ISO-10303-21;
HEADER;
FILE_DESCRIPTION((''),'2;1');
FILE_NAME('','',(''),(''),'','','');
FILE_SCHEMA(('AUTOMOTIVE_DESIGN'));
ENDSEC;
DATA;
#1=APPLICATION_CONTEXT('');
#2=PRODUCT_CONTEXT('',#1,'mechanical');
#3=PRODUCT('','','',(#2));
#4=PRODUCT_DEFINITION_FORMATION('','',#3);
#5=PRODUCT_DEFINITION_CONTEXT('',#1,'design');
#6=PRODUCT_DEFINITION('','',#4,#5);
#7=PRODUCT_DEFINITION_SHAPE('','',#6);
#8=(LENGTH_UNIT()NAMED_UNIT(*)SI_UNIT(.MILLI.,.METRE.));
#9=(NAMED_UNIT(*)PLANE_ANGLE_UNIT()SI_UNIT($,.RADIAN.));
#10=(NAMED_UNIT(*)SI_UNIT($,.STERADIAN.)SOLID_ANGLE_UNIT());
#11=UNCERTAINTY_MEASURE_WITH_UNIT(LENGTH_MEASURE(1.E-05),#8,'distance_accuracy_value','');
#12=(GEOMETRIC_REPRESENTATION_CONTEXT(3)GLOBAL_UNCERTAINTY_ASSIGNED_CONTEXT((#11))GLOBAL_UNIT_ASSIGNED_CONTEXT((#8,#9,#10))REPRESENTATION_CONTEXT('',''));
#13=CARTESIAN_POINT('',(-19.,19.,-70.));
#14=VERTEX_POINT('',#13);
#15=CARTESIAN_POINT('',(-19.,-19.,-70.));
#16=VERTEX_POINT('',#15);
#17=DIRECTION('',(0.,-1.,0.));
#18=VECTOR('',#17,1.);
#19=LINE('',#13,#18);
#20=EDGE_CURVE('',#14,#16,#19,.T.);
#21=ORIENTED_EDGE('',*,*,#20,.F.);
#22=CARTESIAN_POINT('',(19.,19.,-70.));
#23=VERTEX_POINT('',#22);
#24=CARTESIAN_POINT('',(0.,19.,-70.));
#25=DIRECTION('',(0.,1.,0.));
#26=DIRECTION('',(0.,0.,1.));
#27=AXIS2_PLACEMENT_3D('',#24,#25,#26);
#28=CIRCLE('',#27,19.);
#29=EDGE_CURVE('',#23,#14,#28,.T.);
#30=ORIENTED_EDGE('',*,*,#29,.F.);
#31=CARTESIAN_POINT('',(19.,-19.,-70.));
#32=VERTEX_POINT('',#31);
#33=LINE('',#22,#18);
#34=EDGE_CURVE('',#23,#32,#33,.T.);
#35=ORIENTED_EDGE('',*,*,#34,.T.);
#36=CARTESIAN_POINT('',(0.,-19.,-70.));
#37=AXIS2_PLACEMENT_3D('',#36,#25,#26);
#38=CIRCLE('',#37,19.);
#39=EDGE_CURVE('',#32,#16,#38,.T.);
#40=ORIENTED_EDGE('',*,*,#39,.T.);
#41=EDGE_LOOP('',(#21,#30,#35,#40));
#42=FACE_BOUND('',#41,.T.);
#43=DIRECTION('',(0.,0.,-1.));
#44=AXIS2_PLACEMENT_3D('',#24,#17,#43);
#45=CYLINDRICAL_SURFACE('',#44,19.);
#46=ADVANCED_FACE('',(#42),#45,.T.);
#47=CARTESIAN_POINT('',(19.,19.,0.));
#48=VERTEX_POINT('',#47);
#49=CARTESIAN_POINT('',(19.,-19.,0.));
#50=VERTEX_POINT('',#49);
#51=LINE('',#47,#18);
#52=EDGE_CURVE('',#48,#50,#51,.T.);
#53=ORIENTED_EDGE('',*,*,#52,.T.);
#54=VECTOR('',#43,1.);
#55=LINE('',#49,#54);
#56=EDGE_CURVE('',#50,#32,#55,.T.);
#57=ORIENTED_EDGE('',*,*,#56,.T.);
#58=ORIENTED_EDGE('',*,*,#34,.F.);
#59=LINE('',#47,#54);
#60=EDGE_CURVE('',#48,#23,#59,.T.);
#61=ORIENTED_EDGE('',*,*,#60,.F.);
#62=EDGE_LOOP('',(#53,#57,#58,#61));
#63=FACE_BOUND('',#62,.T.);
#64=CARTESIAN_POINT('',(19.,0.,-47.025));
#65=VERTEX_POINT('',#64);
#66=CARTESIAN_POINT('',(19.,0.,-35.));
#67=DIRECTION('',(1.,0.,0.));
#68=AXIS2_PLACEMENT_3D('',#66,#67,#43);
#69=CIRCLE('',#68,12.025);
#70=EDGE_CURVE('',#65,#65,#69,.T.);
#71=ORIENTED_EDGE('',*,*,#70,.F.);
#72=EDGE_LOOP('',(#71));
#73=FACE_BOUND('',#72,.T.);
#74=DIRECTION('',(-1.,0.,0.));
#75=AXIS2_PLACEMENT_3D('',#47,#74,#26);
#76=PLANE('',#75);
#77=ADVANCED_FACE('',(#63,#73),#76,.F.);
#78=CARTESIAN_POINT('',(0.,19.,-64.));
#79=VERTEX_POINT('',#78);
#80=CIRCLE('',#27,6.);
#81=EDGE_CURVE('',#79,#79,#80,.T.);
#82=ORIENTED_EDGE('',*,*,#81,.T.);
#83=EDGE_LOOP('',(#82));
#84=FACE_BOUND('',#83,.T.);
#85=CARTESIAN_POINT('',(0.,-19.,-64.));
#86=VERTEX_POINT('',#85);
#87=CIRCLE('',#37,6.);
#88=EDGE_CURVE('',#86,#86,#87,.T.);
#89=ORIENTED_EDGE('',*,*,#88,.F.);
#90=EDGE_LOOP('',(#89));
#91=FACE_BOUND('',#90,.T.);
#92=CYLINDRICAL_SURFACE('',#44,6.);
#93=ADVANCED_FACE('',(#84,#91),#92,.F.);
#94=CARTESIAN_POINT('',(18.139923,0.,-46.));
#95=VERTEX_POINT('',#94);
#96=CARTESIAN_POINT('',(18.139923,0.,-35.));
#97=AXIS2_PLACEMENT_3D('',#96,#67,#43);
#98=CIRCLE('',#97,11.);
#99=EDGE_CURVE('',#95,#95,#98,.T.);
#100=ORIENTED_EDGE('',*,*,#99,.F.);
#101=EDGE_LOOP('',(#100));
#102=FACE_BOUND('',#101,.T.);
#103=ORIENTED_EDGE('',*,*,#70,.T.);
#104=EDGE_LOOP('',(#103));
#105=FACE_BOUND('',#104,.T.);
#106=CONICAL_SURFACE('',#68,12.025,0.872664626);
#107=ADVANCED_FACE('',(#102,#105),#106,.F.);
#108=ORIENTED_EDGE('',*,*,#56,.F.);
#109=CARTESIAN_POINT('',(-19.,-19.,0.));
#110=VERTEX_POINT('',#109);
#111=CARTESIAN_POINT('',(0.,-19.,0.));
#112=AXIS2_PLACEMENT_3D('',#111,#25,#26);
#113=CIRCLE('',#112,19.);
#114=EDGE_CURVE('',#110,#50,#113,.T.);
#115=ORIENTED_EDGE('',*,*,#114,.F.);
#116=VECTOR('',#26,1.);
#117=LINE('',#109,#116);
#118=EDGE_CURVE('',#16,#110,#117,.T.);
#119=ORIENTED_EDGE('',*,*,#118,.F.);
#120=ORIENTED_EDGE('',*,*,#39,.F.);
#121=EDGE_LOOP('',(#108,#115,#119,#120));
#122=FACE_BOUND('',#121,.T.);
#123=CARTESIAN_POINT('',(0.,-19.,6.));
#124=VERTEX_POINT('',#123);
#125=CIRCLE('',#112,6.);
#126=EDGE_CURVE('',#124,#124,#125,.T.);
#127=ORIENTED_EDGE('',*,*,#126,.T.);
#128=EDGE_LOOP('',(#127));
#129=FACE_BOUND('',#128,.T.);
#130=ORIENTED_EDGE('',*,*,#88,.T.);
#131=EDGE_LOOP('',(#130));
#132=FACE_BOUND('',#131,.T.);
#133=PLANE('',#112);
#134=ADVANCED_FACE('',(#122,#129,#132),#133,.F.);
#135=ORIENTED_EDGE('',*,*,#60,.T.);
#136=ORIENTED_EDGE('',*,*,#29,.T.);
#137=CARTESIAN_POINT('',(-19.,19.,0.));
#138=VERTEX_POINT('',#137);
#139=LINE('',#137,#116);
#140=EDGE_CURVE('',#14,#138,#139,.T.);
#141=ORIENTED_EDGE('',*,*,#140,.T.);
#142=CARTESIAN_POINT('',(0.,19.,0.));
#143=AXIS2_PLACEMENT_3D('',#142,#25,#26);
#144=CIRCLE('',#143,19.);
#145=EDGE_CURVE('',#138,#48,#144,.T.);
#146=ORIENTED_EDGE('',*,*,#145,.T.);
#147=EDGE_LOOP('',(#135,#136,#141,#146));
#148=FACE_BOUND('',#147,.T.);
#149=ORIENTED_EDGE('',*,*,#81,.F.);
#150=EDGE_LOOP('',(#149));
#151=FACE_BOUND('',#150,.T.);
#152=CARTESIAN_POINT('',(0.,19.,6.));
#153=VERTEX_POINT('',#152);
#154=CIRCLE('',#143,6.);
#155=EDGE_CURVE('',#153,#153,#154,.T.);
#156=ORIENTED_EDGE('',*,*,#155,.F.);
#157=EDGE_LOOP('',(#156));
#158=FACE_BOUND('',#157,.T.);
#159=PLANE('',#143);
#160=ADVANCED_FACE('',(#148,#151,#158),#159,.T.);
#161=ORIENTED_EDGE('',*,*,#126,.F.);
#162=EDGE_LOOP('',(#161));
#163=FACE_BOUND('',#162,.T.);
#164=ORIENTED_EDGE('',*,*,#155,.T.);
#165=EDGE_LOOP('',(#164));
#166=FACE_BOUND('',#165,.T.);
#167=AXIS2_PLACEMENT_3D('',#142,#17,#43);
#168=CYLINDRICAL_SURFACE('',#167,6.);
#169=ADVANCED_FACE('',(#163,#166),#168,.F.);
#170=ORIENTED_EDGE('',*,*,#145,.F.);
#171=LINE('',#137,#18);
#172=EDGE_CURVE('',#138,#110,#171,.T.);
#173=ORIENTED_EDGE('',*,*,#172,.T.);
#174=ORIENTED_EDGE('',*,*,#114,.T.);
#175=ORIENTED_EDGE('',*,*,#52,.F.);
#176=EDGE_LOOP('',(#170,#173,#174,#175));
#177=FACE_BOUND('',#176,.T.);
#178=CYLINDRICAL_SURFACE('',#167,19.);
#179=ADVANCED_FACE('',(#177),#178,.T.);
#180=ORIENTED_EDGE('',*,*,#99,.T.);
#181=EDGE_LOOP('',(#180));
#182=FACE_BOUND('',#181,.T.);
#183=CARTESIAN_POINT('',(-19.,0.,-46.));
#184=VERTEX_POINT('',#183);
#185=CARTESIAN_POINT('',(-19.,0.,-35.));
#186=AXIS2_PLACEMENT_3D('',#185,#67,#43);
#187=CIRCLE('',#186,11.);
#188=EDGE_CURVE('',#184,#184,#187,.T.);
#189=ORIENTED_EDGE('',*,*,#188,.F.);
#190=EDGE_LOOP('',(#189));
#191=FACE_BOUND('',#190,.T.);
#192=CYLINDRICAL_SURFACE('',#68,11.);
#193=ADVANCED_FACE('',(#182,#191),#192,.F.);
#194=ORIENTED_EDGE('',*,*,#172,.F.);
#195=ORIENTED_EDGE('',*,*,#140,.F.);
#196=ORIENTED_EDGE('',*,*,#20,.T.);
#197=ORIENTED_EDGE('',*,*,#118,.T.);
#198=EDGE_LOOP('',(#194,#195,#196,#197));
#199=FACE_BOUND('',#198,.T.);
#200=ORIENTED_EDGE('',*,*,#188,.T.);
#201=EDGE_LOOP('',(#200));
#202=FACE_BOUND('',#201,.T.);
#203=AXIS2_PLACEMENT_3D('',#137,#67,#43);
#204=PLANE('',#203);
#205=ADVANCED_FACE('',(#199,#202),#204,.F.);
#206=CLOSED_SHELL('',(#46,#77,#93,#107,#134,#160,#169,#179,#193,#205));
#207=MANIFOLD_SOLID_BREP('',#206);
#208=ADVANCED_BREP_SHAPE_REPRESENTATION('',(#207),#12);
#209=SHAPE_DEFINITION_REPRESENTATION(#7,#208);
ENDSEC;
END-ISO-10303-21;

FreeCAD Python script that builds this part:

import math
import FreeCAD as App
import Part
import Sketcher

V = App.Vector
Q = App.Units.Quantity

doc = App.newDocument("Part")
body = doc.addObject("PartDesign::Body", "Body")

# Sketch on XZ plane
sketch1 = body.newObject("Sketcher::SketchObject", "Sketch")
sketch1.AttachmentSupport = (doc.getObject("XZ_Plane"), [""])
sketch1.MapMode = "FlatFace"
sketch1.addGeometry([
    Part.LineSegment(V(-19, -70, 0), V(-19, 0, 0)),  # 0
    Part.ArcOfCircle(Part.Circle(V(0, 0, 0), V(0, 0, 1), 19), math.radians(0), math.radians(180)),  # 1
    Part.LineSegment(V(19, 0, 0), V(19, -70, 0)),  # 2
    Part.ArcOfCircle(Part.Circle(V(0, -70, 0), V(0, 0, 1), 19), math.radians(180), math.radians(360)),  # 3
    Part.Circle(V(0, 0, 0), V(0, 0, 1), 6),  # 4
    Part.Circle(V(0, -70, 0), V(0, 0, 1), 6),  # 5
], False)
sketch1.addConstraint([
    Sketcher.Constraint("Tangent", 0, 2, 1, 2),
    Sketcher.Constraint("Tangent", 1, 1, 2, 1),
    Sketcher.Constraint("Tangent", 2, 2, 3, 2),
    Sketcher.Constraint("Tangent", 3, 1, 0, 1),
    Sketcher.Constraint("Vertical", 0),
    Sketcher.Constraint("Vertical", 2),
    Sketcher.Constraint("Coincident", 1, 3, -1, 1),
    Sketcher.Constraint("Coincident", 4, 3, -1, 1),
    Sketcher.Constraint("Coincident", 5, 3, 3, 3),
    Sketcher.Constraint("Equal", 4, 5),
    Sketcher.Constraint("Diameter", 4, Q("12 mm")),
    Sketcher.Constraint("Radius", 1, Q("19 mm")),
    Sketcher.Constraint("DistanceY", 0, 1, 0, 2, Q("70 mm")),
])
pad1 = body.newObject("PartDesign::Pad", "Pad")
pad1.Profile = sketch1
pad1.Length = 38
pad1.Midplane = True

# Sketch on YZ plane
sketch2 = body.newObject("Sketcher::SketchObject", "Sketch001")
sketch2.AttachmentSupport = (doc.getObject("YZ_Plane"), [""])
sketch2.MapMode = "FlatFace"
sketch2.AttachmentOffset = App.Placement(V(0, 0, 19), App.Rotation())
sketch2.addGeometry(Part.Circle(V(0, -35, 0), V(0, 0, 1), 11), False)
sketch2.addConstraint([
    Sketcher.Constraint("PointOnObject", 0, 3, -2),
    Sketcher.Constraint("Diameter", 0, Q("22 mm")),
    Sketcher.Constraint("DistanceY", 0, 3, -1, 1, Q("35 mm")),
])
doc.recompute()
hole = body.newObject("PartDesign::Hole", "Hole")
hole.Profile = sketch2
hole.ThreadType = "None"
hole.Diameter = 22
hole.DepthType = "Dimension"
hole.Depth = 38
hole.DrillPoint = "Angled"
hole.DrillPointAngle = 118
hole.HoleCutType = "Countersink"
hole.HoleCutDiameter = 24.05
hole.HoleCutCountersinkAngle = 100

doc.recompute()
